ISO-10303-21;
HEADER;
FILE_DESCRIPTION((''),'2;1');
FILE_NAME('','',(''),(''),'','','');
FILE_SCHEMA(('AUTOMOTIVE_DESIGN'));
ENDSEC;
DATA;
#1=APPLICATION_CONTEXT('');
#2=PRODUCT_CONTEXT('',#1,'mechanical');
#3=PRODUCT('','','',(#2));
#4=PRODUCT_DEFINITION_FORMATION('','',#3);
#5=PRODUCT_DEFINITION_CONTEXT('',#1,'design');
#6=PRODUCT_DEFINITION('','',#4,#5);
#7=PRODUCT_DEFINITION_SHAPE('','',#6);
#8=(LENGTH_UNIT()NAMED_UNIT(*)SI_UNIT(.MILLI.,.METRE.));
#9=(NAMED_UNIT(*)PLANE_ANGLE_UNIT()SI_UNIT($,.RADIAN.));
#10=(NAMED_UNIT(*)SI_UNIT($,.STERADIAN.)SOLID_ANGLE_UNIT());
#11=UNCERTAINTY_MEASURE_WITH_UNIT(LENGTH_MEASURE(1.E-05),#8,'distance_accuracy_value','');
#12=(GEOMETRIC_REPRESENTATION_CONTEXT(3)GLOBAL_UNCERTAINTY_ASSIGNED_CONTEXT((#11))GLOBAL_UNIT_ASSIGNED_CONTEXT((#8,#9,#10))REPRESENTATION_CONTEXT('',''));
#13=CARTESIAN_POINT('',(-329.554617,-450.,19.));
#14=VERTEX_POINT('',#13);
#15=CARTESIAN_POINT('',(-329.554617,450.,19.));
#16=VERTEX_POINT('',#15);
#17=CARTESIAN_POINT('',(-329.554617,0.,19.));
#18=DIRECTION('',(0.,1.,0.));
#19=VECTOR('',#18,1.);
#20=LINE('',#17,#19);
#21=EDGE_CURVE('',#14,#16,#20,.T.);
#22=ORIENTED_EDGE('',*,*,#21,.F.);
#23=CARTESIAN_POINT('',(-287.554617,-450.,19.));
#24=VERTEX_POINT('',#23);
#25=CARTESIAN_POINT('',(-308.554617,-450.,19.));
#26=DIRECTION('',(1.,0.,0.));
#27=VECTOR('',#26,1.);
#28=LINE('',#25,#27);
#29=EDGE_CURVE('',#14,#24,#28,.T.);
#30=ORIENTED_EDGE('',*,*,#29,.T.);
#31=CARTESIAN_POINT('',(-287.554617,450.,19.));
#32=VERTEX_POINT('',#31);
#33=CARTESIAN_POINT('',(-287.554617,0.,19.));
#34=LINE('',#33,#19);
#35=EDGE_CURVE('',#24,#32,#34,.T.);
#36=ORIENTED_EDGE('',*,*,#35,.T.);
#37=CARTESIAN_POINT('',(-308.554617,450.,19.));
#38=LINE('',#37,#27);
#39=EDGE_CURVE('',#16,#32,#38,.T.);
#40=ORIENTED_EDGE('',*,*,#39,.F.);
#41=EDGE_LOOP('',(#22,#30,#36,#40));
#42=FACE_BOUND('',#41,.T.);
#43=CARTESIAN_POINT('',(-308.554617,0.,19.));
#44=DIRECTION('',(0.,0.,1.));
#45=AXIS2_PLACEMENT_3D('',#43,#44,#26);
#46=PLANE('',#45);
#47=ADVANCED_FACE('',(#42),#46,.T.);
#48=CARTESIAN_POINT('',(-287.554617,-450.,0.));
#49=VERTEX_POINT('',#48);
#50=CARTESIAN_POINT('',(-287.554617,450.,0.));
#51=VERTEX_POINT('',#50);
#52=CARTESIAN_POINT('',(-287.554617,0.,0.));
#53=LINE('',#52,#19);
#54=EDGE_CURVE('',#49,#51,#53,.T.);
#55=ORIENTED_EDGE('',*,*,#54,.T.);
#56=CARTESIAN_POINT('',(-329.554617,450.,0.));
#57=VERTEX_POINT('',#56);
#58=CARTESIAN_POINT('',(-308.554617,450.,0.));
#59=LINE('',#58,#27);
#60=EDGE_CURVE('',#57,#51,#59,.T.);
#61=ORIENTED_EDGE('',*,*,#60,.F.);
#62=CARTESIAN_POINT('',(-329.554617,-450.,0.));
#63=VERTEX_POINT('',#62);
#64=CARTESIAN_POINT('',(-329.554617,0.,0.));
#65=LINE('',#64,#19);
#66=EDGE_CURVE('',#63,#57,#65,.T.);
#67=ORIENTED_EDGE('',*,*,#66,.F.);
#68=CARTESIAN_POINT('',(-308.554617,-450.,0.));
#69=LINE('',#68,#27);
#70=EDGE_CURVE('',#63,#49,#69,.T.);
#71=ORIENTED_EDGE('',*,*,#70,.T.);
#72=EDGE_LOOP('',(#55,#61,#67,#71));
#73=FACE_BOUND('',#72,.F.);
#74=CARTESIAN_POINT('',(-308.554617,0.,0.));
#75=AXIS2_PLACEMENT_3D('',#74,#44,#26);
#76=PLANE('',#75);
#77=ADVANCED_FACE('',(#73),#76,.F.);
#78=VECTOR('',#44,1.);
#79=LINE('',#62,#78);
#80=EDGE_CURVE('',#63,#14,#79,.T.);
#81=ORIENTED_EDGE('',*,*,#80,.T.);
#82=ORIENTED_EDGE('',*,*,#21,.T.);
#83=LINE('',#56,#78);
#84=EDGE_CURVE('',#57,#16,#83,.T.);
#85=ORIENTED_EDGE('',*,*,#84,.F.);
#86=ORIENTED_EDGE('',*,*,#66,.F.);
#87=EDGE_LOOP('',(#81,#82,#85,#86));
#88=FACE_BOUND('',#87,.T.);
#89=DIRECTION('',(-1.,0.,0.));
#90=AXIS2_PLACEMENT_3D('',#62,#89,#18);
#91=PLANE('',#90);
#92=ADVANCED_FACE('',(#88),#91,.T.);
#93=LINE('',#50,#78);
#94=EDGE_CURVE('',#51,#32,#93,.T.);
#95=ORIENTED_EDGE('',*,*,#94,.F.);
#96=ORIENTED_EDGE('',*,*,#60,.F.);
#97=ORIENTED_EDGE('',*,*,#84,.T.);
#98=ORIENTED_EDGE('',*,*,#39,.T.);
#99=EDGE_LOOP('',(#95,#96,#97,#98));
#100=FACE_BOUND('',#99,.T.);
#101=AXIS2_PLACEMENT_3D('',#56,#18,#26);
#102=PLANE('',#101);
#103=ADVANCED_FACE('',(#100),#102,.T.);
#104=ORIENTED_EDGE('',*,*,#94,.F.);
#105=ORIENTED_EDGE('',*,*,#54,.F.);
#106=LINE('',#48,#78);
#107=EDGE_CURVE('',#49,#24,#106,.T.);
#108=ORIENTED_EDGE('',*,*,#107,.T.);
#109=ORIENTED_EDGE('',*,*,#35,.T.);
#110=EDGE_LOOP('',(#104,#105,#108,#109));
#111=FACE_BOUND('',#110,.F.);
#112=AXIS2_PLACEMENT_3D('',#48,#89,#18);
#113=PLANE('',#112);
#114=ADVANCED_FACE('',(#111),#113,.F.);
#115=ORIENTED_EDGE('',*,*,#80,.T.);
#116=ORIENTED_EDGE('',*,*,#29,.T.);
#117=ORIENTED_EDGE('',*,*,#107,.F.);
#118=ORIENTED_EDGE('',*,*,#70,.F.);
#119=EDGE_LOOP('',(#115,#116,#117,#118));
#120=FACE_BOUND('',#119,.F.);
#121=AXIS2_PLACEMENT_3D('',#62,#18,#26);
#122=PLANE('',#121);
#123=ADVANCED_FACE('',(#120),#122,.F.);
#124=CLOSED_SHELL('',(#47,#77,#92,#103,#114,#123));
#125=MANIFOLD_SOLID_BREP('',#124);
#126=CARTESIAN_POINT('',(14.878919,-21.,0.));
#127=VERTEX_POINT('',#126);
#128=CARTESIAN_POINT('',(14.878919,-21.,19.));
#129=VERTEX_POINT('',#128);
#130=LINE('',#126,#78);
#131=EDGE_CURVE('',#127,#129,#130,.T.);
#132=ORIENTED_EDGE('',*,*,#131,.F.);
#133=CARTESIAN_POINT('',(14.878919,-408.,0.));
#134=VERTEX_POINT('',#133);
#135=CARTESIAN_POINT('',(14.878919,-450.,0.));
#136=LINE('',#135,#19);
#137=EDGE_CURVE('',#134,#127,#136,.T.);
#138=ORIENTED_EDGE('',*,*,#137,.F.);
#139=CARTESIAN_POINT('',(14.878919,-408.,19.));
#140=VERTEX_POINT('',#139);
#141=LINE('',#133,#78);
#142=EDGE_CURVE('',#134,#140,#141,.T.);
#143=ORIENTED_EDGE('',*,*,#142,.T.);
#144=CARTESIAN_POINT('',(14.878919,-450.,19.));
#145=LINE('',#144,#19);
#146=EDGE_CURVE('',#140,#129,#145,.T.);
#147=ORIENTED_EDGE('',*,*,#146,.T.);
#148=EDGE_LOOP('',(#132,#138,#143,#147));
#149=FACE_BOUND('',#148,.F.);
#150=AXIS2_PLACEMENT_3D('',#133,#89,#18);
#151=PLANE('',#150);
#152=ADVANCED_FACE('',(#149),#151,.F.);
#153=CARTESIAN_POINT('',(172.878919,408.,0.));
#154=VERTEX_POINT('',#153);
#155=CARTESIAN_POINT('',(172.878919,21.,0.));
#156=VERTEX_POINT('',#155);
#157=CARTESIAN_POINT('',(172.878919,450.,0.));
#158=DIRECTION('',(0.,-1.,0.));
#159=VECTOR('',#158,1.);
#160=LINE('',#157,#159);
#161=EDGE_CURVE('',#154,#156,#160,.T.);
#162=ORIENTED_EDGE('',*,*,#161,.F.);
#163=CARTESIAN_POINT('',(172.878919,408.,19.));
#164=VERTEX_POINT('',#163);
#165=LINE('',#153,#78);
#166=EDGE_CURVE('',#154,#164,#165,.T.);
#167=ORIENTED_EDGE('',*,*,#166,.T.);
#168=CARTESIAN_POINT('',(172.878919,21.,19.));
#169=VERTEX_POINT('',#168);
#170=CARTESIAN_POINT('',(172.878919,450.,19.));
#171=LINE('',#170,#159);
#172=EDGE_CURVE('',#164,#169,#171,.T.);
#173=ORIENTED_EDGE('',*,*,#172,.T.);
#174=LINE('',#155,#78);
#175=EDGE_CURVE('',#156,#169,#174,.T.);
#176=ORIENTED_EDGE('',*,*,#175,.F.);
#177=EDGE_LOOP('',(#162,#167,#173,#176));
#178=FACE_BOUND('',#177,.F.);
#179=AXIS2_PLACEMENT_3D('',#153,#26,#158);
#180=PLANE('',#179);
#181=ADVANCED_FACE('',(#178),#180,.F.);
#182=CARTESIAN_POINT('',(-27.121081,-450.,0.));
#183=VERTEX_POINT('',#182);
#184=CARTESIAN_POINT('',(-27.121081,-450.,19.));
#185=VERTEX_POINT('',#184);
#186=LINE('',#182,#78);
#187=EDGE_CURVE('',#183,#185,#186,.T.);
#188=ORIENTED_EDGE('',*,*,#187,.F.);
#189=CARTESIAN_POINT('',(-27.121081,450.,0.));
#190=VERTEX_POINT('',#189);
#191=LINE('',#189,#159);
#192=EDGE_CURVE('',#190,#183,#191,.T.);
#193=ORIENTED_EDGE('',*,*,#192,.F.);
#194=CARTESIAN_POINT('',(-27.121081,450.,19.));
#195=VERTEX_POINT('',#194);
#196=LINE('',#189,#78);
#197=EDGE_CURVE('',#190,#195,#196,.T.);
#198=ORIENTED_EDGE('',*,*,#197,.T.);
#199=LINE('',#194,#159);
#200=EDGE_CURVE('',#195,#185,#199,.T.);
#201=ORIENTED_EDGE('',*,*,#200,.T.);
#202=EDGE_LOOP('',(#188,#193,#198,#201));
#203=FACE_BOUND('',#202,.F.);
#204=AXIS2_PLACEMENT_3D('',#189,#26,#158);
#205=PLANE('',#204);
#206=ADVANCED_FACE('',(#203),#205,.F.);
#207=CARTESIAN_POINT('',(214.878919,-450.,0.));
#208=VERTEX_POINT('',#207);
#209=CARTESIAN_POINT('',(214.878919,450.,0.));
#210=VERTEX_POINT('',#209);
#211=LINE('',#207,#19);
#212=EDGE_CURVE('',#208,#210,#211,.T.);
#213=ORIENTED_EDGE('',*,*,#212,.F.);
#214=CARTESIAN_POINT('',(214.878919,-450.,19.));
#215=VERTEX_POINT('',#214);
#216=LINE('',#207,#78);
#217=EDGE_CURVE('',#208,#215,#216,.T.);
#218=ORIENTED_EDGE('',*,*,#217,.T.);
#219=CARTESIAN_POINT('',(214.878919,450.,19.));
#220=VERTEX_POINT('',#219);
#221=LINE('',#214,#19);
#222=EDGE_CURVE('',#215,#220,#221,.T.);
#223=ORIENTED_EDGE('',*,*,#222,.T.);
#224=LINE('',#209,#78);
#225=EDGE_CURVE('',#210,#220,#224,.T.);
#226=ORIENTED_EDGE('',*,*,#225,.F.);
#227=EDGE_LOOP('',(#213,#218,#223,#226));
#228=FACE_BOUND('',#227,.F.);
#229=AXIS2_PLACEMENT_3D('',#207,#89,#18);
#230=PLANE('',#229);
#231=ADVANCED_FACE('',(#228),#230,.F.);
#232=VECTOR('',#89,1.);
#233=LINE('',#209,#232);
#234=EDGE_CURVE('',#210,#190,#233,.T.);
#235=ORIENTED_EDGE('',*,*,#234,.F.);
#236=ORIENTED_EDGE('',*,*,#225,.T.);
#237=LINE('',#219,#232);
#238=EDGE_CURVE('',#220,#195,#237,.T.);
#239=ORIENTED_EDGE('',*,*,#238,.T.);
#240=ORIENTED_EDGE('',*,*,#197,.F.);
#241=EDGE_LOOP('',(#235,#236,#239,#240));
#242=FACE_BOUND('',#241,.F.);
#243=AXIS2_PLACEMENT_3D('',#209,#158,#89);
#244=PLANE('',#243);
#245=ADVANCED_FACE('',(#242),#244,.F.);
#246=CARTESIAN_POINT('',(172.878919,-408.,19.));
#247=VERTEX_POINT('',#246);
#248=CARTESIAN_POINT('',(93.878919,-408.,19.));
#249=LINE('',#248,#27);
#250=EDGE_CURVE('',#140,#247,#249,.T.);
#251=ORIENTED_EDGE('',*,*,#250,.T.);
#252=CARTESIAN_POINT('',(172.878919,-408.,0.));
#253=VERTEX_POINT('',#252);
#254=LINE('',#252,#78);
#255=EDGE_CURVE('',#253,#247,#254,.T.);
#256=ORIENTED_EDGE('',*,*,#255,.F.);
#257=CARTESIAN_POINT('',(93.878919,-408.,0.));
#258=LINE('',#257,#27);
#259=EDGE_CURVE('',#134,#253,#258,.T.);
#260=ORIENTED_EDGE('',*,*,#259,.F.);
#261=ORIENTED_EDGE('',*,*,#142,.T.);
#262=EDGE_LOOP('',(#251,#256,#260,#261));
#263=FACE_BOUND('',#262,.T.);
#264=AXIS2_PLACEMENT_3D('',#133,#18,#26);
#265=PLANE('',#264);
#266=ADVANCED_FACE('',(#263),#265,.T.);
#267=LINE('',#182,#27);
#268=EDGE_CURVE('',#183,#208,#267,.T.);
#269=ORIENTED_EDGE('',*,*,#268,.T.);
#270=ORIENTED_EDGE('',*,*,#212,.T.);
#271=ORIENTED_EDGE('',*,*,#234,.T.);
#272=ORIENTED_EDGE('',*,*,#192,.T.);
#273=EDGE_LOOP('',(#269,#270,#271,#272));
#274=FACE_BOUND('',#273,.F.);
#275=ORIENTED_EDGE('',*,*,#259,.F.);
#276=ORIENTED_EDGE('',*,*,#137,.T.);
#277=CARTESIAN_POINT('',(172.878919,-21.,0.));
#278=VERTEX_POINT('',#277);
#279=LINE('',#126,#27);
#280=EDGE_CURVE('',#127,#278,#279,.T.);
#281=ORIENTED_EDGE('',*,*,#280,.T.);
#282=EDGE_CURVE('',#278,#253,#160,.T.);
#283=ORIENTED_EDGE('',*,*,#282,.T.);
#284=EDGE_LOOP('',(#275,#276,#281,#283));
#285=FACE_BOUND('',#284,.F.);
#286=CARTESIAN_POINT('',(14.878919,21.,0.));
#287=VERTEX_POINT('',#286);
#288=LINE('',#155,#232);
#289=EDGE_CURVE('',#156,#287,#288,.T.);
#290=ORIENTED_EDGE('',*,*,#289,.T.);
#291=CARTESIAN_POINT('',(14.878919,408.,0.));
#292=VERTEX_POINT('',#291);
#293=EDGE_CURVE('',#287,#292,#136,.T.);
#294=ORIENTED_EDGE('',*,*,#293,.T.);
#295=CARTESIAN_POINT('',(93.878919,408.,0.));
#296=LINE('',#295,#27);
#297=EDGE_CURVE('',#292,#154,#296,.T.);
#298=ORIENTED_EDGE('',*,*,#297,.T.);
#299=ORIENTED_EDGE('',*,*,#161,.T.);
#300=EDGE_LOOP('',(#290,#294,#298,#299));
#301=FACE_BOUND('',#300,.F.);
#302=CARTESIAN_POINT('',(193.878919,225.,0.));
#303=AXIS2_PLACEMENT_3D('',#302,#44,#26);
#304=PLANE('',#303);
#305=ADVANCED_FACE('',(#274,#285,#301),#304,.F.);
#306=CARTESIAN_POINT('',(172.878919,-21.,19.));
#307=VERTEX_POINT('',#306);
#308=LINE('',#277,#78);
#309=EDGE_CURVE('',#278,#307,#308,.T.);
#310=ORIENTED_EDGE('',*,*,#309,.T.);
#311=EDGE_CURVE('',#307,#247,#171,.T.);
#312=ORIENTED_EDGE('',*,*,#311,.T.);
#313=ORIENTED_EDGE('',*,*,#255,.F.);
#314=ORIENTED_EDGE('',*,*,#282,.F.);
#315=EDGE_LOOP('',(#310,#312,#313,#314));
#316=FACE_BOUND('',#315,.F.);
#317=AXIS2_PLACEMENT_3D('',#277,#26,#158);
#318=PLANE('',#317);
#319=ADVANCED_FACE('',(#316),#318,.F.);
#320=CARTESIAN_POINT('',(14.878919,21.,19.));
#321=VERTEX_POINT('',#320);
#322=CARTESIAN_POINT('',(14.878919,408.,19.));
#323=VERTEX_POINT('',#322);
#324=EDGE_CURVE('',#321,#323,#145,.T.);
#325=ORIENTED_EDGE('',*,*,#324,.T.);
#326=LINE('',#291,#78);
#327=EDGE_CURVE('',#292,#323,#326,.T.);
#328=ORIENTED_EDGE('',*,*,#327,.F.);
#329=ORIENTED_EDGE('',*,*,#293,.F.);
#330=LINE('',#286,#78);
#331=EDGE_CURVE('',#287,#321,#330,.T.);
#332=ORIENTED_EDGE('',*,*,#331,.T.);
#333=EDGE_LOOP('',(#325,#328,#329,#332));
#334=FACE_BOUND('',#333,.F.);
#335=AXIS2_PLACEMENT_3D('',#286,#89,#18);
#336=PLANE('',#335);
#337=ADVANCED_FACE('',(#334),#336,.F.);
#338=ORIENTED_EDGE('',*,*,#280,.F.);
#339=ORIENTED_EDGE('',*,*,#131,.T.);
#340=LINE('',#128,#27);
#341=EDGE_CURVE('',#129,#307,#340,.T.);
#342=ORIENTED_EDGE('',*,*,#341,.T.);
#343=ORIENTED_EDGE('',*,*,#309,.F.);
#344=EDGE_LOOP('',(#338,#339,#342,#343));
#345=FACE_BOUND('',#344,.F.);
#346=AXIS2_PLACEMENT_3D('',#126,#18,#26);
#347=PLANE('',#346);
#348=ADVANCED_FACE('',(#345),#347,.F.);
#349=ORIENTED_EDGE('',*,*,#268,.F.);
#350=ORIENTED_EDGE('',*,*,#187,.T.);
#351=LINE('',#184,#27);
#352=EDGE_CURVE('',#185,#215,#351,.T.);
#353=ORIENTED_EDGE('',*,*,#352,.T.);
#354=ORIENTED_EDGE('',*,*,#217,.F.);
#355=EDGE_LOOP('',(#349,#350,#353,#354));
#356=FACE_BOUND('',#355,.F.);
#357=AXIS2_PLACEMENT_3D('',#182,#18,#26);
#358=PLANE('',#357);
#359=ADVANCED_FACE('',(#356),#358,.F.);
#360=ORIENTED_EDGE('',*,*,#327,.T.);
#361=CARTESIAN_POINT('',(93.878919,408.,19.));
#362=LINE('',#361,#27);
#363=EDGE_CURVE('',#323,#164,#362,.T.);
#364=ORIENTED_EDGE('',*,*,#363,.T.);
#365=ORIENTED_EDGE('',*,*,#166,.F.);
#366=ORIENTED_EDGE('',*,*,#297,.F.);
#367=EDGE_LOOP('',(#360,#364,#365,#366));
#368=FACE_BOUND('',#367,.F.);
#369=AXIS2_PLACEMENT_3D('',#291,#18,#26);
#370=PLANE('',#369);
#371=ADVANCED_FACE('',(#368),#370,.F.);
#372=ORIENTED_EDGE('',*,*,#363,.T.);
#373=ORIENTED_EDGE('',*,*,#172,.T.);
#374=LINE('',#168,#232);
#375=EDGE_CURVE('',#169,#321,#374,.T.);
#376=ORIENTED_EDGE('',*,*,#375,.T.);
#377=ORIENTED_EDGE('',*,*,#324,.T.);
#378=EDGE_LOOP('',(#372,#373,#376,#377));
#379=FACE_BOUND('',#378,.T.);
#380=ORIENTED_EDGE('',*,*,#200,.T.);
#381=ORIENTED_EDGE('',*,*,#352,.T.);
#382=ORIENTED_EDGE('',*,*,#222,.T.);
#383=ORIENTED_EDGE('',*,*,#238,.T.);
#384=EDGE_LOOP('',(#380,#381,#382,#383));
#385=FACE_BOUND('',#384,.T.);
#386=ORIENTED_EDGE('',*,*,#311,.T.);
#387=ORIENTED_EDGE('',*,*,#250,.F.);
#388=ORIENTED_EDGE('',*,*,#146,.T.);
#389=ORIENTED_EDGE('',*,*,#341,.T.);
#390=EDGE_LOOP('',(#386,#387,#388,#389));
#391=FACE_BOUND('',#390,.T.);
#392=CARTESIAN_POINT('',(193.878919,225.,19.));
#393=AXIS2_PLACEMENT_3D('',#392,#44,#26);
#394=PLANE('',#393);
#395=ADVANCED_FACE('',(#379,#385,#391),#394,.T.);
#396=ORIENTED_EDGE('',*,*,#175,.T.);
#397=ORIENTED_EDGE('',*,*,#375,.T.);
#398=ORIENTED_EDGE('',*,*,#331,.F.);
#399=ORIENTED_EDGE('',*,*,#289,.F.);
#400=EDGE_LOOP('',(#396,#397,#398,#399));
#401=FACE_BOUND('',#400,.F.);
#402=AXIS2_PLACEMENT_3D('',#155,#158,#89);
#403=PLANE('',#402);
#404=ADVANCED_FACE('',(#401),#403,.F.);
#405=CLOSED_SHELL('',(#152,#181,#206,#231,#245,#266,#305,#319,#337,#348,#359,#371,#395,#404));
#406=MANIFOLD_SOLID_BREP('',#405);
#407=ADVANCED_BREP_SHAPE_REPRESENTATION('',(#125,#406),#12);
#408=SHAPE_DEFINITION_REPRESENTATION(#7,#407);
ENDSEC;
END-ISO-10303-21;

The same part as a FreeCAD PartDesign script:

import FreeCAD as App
import Part
import Sketcher

V = App.Vector
Q = App.Units.Quantity

doc = App.newDocument("Part")
body = doc.addObject("PartDesign::Body", "Body")

# Sketch on XY plane
sketch1 = body.newObject("Sketcher::SketchObject", "Sketch")
sketch1.AttachmentSupport = (doc.getObject("XY_Plane"), [""])
sketch1.MapMode = "FlatFace"
sketch1.addGeometry([
    Part.LineSegment(V(214.878919, 450, 0), V(-27.121081, 450, 0)),  # 0
    Part.LineSegment(V(-27.121081, 450, 0), V(-27.121081, -450, 0)),  # 1
    Part.LineSegment(V(-27.121081, -450, 0), V(214.878919, -450, 0)),  # 2
    Part.LineSegment(V(214.878919, -450, 0), V(214.878919, 450, 0)),  # 3
    Part.LineSegment(V(14.878919, -408, 0), V(14.878919, -21, 0)),  # 4
    Part.LineSegment(V(14.878919, -21, 0), V(172.878919, -21, 0)),  # 5
    Part.LineSegment(V(172.878919, -21, 0), V(172.878919, -408, 0)),  # 6
    Part.LineSegment(V(172.878919, -408, 0), V(14.878919, -408, 0)),  # 7
    Part.LineSegment(V(14.878919, 21, 0), V(14.878919, 408, 0)),  # 8
    Part.LineSegment(V(14.878919, 408, 0), V(172.878919, 408, 0)),  # 9
    Part.LineSegment(V(172.878919, 408, 0), V(172.878919, 21, 0)),  # 10
    Part.LineSegment(V(172.878919, 21, 0), V(14.878919, 21, 0)),  # 11
], False)
sketch1.addConstraint([
    Sketcher.Constraint("Coincident", 0, 2, 1, 1),
    Sketcher.Constraint("Coincident", 1, 2, 2, 1),
    Sketcher.Constraint("Coincident", 2, 2, 3, 1),
    Sketcher.Constraint("Coincident", 3, 2, 0, 1),
    Sketcher.Constraint("Coincident", 4, 2, 5, 1),
    Sketcher.Constraint("Coincident", 5, 2, 6, 1),
    Sketcher.Constraint("Coincident", 6, 2, 7, 1),
    Sketcher.Constraint("Coincident", 7, 2, 4, 1),
    Sketcher.Constraint("Coincident", 8, 2, 9, 1),
    Sketcher.Constraint("Coincident", 9, 2, 10, 1),
    Sketcher.Constraint("Coincident", 10, 2, 11, 1),
    Sketcher.Constraint("Coincident", 11, 2, 8, 1),
    Sketcher.Constraint("Horizontal", 0),
    Sketcher.Constraint("Vertical", 1),
    Sketcher.Constraint("Horizontal", 2),
    Sketcher.Constraint("Vertical", 3),
    Sketcher.Constraint("Vertical", 4),
    Sketcher.Constraint("Horizontal", 5),
    Sketcher.Constraint("Vertical", 6),
    Sketcher.Constraint("Horizontal", 7),
    Sketcher.Constraint("Vertical", 8),
    Sketcher.Constraint("Horizontal", 9),
    Sketcher.Constraint("Vertical", 10),
    Sketcher.Constraint("Horizontal", 11),
    Sketcher.Constraint("Symmetric", 7, 2, 8, 2, -1),
    Sketcher.Constraint("Symmetric", 5, 2, 10, 2, -1),
    Sketcher.Constraint("DistanceX", 0, 2, 0, 1, Q("242 mm")),
    Sketcher.Constraint("DistanceX", 5, 1, 5, 2, Q("158 mm")),
    Sketcher.Constraint("DistanceY", 1, 2, 1, 1, Q("900 mm")),
    Sketcher.Constraint("DistanceY", 4, 1, 4, 2, Q("387 mm")),
    Sketcher.Constraint("DistanceY", -1, 1, 0, 2, Q("450 mm")),
    Sketcher.Constraint("DistanceY", 4, 2, -1, 1, Q("21 mm")),
    Sketcher.Constraint("DistanceX", 1, 2, 4, 2, Q("42 mm")),
    Sketcher.Constraint("DistanceX", 0, 2, -1, 1, Q("27.121081 mm")),
])
pad1 = body.newObject("PartDesign::Pad", "Pad")
pad1.Profile = sketch1
pad1.Length = 19
body2 = doc.addObject("PartDesign::Body", "Body001")

# Sketch on XY plane
sketch2 = body2.newObject("Sketcher::SketchObject", "Sketch001")
sketch2.AttachmentSupport = (doc.getObject("XY_Plane001"), [""])
sketch2.MapMode = "FlatFace"
sketch2.addGeometry([
    Part.LineSegment(V(-329.554617, 450, 0), V(-329.554617, -450, 0)),
    Part.LineSegment(V(-329.554617, -450, 0), V(-287.554617, -450, 0)),
    Part.LineSegment(V(-287.554617, -450, 0), V(-287.554617, 450, 0)),
    Part.LineSegment(V(-287.554617, 450, 0), V(-329.554617, 450, 0)),
], False)
sketch2.addConstraint([
    Sketcher.Constraint("Coincident", 0, 2, 1, 1),
    Sketcher.Constraint("Coincident", 1, 2, 2, 1),
    Sketcher.Constraint("Coincident", 2, 2, 3, 1),
    Sketcher.Constraint("Coincident", 3, 2, 0, 1),
    Sketcher.Constraint("Vertical", 0),
    Sketcher.Constraint("Horizontal", 1),
    Sketcher.Constraint("Vertical", 2),
    Sketcher.Constraint("Horizontal", 3),
    Sketcher.Constraint("DistanceX", 1, 1, 1, 2, Q("42 mm")),
    Sketcher.Constraint("DistanceY", 0, 2, 0, 1, Q("900 mm")),
    Sketcher.Constraint("DistanceY", 0, 2, -1, 1, Q("450 mm")),
    Sketcher.Constraint("DistanceX", 0, 2, -1, 1, Q("329.554617 mm")),
])
pad2 = body2.newObject("PartDesign::Pad", "Pad001")
pad2.Profile = sketch2
pad2.Length = 19

doc.recompute()
